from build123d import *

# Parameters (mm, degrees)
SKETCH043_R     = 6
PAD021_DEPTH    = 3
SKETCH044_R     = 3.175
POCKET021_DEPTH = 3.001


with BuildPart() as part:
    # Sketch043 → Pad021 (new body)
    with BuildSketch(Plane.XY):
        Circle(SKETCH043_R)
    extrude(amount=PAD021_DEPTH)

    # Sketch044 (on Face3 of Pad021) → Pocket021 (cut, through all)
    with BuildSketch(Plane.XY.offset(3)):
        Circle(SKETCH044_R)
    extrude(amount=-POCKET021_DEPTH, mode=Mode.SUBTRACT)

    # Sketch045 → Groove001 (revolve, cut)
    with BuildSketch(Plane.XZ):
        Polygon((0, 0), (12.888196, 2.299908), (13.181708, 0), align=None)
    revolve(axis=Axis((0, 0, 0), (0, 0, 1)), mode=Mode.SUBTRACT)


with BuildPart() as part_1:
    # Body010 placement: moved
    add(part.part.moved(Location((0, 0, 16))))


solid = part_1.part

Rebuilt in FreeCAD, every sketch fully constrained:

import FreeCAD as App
import Part
import Sketcher

doc = App.newDocument("Part")
body = doc.addObject("PartDesign::Body", "Body")

# Sketch on XY plane
sketch1 = body.newObject("Sketcher::SketchObject", "Sketch")
sketch1.AttachmentSupport = (doc.getObject("XY_Plane"), [""])
sketch1.MapMode = "FlatFace"
sketch1.addGeometry(Part.Circle(App.Vector(0, 0, 0), App.Vector(0, 0, 1), 6), False)
sketch1.addConstraint([
    Sketcher.Constraint("Coincident", 0, 3, -1, 1),
    Sketcher.Constraint("Diameter", 0, 12.0),
])
pad1 = body.newObject("PartDesign::Pad", "Pad")
pad1.Profile = sketch1
pad1.Length = 3

# Sketch on XY plane
sketch2 = body.newObject("Sketcher::SketchObject", "Sketch001")
sketch2.AttachmentSupport = (doc.getObject("XY_Plane"), [""])
sketch2.MapMode = "FlatFace"
sketch2.AttachmentOffset = App.Placement(App.Vector(0, 0, 3), App.Rotation())
sketch2.addGeometry(Part.Circle(App.Vector(0, 0, 0), App.Vector(0, 0, 1), 3.2), False)
sketch2.addConstraint([
    Sketcher.Constraint("Coincident", 0, 3, -1, 1),
    Sketcher.Constraint("Diameter", 0, 6.35),
])
pocket1 = body.newObject("PartDesign::Pocket", "Pocket")
pocket1.Profile = sketch2
pocket1.Type = "ThroughAll"

# Sketch on XZ plane
sketch3 = body.newObject("Sketcher::SketchObject", "Sketch002")
sketch3.AttachmentSupport = (doc.getObject("XZ_Plane"), [""])
sketch3.MapMode = "FlatFace"
sketch3.addGeometry([
    Part.LineSegment(App.Vector(12.9, 2.3, 0), App.Vector(0, 0, 0)),
    Part.LineSegment(App.Vector(0, 0, 0), App.Vector(13.2, 0, 0)),
    Part.LineSegment(App.Vector(13.2, 0, 0), App.Vector(12.9, 2.3, 0)),
], False)
sketch3.addConstraint([
    Sketcher.Constraint("Coincident", 0, 2, 1, 1),
    Sketcher.Constraint("Coincident", 1, 2, 2, 1),
    Sketcher.Constraint("Coincident", 2, 2, 0, 1),
    Sketcher.Constraint("Horizontal", 1),
    Sketcher.Constraint("Coincident", 0, 2, -1, 1),
    Sketcher.Constraint("Distance", 2, 2.318561),
    Sketcher.Constraint("DistanceX", 1, 1, 1, 2, 13.181708),
    Sketcher.Constraint("DistanceX", 2, 2, 1, 2, 0.293512),
])
groove = body.newObject("PartDesign::Groove", "Groove")
groove.Profile = sketch3
groove.ReferenceAxis = (sketch3, ["V_Axis"])
groove.Angle = 360
body2 = doc.addObject("PartDesign::Body", "Body001")
doc.recompute()

body.Placement = App.Placement(App.Vector(0, 0, 16), App.Rotation(App.Vector(0, 0, 1), 0))
boolean = body2.newObject("PartDesign::Boolean", "Boolean")
boolean.Type = "Fuse"
boolean.addObjects([body])

doc.recompute()
